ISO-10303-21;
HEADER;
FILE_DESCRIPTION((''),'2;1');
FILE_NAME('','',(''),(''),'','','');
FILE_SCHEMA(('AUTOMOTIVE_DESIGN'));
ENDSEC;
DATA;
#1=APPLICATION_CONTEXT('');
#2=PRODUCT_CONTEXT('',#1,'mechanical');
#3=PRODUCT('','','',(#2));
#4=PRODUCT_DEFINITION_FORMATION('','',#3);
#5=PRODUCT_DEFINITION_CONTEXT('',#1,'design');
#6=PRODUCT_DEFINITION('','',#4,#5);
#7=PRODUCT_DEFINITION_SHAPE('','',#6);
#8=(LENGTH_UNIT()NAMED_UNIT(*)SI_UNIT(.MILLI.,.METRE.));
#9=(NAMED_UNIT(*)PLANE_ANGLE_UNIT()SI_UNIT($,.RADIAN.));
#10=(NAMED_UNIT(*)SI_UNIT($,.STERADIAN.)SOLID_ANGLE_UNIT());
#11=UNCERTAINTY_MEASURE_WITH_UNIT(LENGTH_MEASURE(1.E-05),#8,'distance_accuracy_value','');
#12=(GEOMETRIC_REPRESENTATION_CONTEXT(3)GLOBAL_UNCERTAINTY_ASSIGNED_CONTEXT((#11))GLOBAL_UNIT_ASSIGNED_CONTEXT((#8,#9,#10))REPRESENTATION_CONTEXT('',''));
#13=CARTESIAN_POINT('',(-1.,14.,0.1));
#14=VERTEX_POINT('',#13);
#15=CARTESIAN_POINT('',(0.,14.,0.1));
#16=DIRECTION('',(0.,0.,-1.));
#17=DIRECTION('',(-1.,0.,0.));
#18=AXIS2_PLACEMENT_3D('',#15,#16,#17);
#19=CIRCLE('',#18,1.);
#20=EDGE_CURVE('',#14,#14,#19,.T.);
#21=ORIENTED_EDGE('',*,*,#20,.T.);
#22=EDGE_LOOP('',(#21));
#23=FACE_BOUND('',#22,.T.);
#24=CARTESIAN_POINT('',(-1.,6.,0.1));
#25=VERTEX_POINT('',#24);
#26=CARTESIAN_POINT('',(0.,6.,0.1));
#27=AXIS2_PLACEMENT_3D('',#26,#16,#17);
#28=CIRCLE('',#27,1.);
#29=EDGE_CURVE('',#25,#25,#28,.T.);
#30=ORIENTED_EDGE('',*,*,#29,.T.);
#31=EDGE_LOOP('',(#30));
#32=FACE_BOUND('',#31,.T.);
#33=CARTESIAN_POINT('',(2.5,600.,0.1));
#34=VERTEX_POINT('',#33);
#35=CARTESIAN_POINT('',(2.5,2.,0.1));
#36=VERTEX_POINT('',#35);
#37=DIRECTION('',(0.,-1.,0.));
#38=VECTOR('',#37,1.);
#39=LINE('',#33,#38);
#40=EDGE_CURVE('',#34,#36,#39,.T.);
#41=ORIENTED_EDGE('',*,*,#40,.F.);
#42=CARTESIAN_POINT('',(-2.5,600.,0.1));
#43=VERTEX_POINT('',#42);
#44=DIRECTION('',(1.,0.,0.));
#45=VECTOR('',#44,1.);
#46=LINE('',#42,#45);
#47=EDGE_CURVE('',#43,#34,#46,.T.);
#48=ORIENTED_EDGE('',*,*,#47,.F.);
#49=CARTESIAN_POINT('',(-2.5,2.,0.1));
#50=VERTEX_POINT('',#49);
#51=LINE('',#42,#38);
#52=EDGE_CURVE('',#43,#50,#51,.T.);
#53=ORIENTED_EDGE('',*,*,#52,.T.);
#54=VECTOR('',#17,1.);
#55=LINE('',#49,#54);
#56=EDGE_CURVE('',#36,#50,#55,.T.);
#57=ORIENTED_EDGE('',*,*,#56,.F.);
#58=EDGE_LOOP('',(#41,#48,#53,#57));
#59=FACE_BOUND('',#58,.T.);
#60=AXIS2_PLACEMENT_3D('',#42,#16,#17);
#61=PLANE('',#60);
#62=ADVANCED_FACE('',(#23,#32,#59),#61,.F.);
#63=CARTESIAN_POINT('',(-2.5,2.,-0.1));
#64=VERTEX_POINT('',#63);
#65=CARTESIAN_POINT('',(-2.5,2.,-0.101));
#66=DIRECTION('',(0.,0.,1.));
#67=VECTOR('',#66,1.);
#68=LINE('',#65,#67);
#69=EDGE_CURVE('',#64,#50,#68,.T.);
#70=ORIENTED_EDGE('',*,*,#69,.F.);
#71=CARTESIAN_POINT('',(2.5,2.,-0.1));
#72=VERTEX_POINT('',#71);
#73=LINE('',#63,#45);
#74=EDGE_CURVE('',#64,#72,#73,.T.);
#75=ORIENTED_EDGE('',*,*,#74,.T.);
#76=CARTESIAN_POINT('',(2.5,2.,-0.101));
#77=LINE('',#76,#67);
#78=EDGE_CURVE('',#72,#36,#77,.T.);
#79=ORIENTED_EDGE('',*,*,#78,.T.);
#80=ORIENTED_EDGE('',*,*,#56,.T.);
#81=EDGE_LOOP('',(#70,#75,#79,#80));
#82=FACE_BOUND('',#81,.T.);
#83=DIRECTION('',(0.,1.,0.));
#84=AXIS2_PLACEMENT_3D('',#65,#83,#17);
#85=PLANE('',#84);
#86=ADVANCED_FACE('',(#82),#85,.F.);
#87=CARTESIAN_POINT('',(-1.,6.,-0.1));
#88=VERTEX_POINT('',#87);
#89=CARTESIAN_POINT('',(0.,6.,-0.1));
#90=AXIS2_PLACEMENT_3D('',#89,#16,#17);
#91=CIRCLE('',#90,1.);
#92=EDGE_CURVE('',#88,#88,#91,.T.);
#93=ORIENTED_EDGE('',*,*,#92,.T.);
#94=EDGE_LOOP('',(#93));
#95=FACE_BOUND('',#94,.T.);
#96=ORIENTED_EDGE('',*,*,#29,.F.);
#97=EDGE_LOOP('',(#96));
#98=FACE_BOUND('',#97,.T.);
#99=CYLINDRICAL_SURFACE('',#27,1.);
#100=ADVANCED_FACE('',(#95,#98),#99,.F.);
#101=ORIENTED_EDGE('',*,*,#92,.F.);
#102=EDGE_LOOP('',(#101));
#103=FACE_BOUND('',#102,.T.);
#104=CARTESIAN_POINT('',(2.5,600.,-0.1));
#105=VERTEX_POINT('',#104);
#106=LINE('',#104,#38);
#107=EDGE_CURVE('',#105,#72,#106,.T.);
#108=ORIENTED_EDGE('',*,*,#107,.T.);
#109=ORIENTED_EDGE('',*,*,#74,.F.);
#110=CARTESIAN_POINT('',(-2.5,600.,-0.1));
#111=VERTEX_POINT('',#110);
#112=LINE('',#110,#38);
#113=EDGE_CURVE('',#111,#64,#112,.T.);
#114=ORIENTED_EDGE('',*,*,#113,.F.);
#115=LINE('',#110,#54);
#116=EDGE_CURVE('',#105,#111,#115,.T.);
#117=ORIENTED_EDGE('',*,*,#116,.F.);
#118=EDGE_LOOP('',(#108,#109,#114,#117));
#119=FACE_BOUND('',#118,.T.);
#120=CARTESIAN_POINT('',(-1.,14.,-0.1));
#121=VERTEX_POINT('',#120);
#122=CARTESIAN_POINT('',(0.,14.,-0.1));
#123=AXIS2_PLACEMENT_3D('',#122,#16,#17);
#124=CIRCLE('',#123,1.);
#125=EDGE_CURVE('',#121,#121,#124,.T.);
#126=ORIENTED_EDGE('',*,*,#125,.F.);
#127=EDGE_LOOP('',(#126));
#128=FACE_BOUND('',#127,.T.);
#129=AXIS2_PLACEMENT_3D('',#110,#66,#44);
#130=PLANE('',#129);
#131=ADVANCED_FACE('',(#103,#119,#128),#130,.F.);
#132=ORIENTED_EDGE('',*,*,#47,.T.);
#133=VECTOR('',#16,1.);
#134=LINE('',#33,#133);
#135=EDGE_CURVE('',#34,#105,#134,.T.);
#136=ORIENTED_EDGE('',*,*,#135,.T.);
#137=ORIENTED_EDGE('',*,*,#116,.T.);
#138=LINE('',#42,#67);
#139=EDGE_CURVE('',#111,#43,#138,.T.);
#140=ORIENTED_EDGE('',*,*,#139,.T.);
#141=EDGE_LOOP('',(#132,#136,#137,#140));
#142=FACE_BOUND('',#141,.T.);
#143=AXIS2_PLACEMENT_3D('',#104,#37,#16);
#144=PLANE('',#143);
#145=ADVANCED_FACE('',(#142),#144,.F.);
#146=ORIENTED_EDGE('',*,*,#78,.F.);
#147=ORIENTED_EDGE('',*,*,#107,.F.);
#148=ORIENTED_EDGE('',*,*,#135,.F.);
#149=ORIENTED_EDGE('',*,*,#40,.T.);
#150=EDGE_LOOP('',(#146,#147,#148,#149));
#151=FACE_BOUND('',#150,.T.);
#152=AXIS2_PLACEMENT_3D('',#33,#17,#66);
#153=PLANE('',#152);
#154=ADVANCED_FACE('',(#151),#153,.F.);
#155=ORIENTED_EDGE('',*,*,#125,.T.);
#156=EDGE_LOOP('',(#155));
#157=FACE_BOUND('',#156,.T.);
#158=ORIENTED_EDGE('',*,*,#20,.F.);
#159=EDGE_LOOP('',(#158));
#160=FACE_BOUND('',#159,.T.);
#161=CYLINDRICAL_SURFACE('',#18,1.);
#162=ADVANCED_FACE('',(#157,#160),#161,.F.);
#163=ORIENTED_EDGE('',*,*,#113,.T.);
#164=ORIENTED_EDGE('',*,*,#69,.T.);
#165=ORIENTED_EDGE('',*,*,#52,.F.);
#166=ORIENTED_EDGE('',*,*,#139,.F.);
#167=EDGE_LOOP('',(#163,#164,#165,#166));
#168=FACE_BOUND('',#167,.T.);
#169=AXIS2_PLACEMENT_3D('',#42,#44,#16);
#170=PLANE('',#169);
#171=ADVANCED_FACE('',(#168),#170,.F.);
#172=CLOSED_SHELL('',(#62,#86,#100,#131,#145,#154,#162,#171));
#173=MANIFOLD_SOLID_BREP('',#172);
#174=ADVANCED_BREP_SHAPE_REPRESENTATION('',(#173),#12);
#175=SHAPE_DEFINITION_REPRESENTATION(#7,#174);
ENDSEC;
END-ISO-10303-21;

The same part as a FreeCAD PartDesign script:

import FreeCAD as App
import Part
import Sketcher

V = App.Vector
Q = App.Units.Quantity

doc = App.newDocument("Part")
params = doc.addObject("Spreadsheet::Sheet", "Params")
for row, (alias, value) in enumerate([
    ("sketch1_width", "5 mm"),
    ("sketch1_height", "0.2 mm"),
    ("pad1_length", "600 mm"),
    ("sketch2_diameter", "2 mm"),
    ("sketch3_width", "5 mm"),
    ("sketch3_height", "2 mm"),
], start=1):
    params.set(f"A{row}", alias)
    params.set(f"B{row}", "=" + value)
    params.setAlias(f"B{row}", alias)

body = doc.addObject("PartDesign::Body", "Body")

# Sketch on XZ plane
sketch1 = body.newObject("Sketcher::SketchObject", "Sketch")
sketch1.AttachmentSupport = (doc.getObject("XZ_Plane"), [""])
sketch1.MapMode = "FlatFace"
sketch1.addGeometry(Part.LineSegment(V(-2.5, -0.1, 0), V(-2.5, 0.1, 0)), False)
sketch1.addGeometry(Part.LineSegment(V(-2.5, 0.1, 0), V(2.5, 0.1, 0)), False)
sketch1.addGeometry(Part.LineSegment(V(2.5, 0.1, 0), V(2.5, -0.1, 0)), False)
sketch1.addGeometry(Part.LineSegment(V(2.5, -0.1, 0), V(-2.5, -0.1, 0)), False)
sketch1.addConstraint(Sketcher.Constraint("Coincident", 0, 2, 1, 1))
sketch1.addConstraint(Sketcher.Constraint("Coincident", 1, 2, 2, 1))
sketch1.addConstraint(Sketcher.Constraint("Coincident", 2, 2, 3, 1))
sketch1.addConstraint(Sketcher.Constraint("Coincident", 3, 2, 0, 1))
sketch1.addConstraint(Sketcher.Constraint("Vertical", 0))
sketch1.addConstraint(Sketcher.Constraint("Horizontal", 1))
sketch1.addConstraint(Sketcher.Constraint("Vertical", 2))
sketch1.addConstraint(Sketcher.Constraint("Horizontal", 3))
sketch1.addConstraint(Sketcher.Constraint("Symmetric", 0, 2, 2, 2, -1, 1))
sketch1.addConstraint(Sketcher.Constraint("DistanceX", 1, 1, 1, 2, Q("5 mm")))
sketch1.addConstraint(Sketcher.Constraint("DistanceY", 0, 1, 0, 2, Q("0.2 mm")))
sketch1.setExpression("Constraints[9]", "Params.sketch1_width")
sketch1.setExpression("Constraints[10]", "Params.sketch1_height")
pad1 = body.newObject("PartDesign::Pad", "Pad")
pad1.Profile = sketch1
pad1.setExpression("Length", "Params.pad1_length")
pad1.Reversed = True

# Sketch on XY plane
sketch2 = body.newObject("Sketcher::SketchObject", "Sketch001")
sketch2.AttachmentSupport = (doc.getObject("XY_Plane"), [""])
sketch2.MapMode = "FlatFace"
sketch2.AttachmentOffset = App.Placement(V(0, 0, -0.1), App.Rotation())
sketch2.addGeometry(Part.Circle(V(0, 14, 0), V(0, 0, 1), 1), False)
sketch2.addGeometry(Part.Circle(V(0, 6, 0), V(0, 0, 1), 1), False)
sketch2.addConstraint(Sketcher.Constraint("Equal", 0, 1))
sketch2.addConstraint(Sketcher.Constraint("PointOnObject", 0, 3, -2))
sketch2.addConstraint(Sketcher.Constraint("PointOnObject", 1, 3, -2))
sketch2.addConstraint(Sketcher.Constraint("Diameter", 0, Q("2 mm")))
sketch2.addConstraint(Sketcher.Constraint("DistanceY", -1, 1, 0, 3, Q("14 mm")))
sketch2.addConstraint(Sketcher.Constraint("DistanceY", -1, 1, 1, 3, Q("6 mm")))
sketch2.setExpression("Constraints[3]", "Params.sketch2_diameter")
pocket1 = body.newObject("PartDesign::Pocket", "Pocket")
pocket1.Profile = sketch2
pocket1.Type = "ThroughAll"
pocket1.Reversed = True

# Sketch on XY plane
sketch3 = body.newObject("Sketcher::SketchObject", "Sketch002")
sketch3.AttachmentSupport = (doc.getObject("XY_Plane"), [""])
sketch3.MapMode = "FlatFace"
sketch3.AttachmentOffset = App.Placement(V(0, 0, 0.1), App.Rotation())
sketch3.addGeometry(Part.LineSegment(V(-2.5, 2, 0), V(-2.5, 0, 0)), False)
sketch3.addGeometry(Part.LineSegment(V(-2.5, 0, 0), V(2.5, 0, 0)), False)
sketch3.addGeometry(Part.LineSegment(V(2.5, 0, 0), V(2.5, 2, 0)), False)
sketch3.addGeometry(Part.LineSegment(V(2.5, 2, 0), V(-2.5, 2, 0)), False)
sketch3.addConstraint(Sketcher.Constraint("Coincident", 0, 2, 1, 1))
sketch3.addConstraint(Sketcher.Constraint("Coincident", 1, 2, 2, 1))
sketch3.addConstraint(Sketcher.Constraint("Coincident", 2, 2, 3, 1))
sketch3.addConstraint(Sketcher.Constraint("Coincident", 3, 2, 0, 1))
sketch3.addConstraint(Sketcher.Constraint("Vertical", 0))
sketch3.addConstraint(Sketcher.Constraint("Horizontal", 1))
sketch3.addConstraint(Sketcher.Constraint("Vertical", 2))
sketch3.addConstraint(Sketcher.Constraint("Horizontal", 3))
sketch3.addConstraint(Sketcher.Constraint("Symmetric", 0, 2, 1, 2, -1, 1))
sketch3.addConstraint(Sketcher.Constraint("DistanceX", 1, 1, 1, 2, Q("5 mm")))
sketch3.addConstraint(Sketcher.Constraint("DistanceY", 0, 2, 0, 1, Q("2 mm")))
sketch3.setExpression("Constraints[9]", "Params.sketch3_width")
sketch3.setExpression("Constraints[10]", "Params.sketch3_height")
pocket2 = body.newObject("PartDesign::Pocket", "Pocket001")
pocket2.Profile = sketch3
pocket2.Type = "UpToFirst"

doc.recompute()
